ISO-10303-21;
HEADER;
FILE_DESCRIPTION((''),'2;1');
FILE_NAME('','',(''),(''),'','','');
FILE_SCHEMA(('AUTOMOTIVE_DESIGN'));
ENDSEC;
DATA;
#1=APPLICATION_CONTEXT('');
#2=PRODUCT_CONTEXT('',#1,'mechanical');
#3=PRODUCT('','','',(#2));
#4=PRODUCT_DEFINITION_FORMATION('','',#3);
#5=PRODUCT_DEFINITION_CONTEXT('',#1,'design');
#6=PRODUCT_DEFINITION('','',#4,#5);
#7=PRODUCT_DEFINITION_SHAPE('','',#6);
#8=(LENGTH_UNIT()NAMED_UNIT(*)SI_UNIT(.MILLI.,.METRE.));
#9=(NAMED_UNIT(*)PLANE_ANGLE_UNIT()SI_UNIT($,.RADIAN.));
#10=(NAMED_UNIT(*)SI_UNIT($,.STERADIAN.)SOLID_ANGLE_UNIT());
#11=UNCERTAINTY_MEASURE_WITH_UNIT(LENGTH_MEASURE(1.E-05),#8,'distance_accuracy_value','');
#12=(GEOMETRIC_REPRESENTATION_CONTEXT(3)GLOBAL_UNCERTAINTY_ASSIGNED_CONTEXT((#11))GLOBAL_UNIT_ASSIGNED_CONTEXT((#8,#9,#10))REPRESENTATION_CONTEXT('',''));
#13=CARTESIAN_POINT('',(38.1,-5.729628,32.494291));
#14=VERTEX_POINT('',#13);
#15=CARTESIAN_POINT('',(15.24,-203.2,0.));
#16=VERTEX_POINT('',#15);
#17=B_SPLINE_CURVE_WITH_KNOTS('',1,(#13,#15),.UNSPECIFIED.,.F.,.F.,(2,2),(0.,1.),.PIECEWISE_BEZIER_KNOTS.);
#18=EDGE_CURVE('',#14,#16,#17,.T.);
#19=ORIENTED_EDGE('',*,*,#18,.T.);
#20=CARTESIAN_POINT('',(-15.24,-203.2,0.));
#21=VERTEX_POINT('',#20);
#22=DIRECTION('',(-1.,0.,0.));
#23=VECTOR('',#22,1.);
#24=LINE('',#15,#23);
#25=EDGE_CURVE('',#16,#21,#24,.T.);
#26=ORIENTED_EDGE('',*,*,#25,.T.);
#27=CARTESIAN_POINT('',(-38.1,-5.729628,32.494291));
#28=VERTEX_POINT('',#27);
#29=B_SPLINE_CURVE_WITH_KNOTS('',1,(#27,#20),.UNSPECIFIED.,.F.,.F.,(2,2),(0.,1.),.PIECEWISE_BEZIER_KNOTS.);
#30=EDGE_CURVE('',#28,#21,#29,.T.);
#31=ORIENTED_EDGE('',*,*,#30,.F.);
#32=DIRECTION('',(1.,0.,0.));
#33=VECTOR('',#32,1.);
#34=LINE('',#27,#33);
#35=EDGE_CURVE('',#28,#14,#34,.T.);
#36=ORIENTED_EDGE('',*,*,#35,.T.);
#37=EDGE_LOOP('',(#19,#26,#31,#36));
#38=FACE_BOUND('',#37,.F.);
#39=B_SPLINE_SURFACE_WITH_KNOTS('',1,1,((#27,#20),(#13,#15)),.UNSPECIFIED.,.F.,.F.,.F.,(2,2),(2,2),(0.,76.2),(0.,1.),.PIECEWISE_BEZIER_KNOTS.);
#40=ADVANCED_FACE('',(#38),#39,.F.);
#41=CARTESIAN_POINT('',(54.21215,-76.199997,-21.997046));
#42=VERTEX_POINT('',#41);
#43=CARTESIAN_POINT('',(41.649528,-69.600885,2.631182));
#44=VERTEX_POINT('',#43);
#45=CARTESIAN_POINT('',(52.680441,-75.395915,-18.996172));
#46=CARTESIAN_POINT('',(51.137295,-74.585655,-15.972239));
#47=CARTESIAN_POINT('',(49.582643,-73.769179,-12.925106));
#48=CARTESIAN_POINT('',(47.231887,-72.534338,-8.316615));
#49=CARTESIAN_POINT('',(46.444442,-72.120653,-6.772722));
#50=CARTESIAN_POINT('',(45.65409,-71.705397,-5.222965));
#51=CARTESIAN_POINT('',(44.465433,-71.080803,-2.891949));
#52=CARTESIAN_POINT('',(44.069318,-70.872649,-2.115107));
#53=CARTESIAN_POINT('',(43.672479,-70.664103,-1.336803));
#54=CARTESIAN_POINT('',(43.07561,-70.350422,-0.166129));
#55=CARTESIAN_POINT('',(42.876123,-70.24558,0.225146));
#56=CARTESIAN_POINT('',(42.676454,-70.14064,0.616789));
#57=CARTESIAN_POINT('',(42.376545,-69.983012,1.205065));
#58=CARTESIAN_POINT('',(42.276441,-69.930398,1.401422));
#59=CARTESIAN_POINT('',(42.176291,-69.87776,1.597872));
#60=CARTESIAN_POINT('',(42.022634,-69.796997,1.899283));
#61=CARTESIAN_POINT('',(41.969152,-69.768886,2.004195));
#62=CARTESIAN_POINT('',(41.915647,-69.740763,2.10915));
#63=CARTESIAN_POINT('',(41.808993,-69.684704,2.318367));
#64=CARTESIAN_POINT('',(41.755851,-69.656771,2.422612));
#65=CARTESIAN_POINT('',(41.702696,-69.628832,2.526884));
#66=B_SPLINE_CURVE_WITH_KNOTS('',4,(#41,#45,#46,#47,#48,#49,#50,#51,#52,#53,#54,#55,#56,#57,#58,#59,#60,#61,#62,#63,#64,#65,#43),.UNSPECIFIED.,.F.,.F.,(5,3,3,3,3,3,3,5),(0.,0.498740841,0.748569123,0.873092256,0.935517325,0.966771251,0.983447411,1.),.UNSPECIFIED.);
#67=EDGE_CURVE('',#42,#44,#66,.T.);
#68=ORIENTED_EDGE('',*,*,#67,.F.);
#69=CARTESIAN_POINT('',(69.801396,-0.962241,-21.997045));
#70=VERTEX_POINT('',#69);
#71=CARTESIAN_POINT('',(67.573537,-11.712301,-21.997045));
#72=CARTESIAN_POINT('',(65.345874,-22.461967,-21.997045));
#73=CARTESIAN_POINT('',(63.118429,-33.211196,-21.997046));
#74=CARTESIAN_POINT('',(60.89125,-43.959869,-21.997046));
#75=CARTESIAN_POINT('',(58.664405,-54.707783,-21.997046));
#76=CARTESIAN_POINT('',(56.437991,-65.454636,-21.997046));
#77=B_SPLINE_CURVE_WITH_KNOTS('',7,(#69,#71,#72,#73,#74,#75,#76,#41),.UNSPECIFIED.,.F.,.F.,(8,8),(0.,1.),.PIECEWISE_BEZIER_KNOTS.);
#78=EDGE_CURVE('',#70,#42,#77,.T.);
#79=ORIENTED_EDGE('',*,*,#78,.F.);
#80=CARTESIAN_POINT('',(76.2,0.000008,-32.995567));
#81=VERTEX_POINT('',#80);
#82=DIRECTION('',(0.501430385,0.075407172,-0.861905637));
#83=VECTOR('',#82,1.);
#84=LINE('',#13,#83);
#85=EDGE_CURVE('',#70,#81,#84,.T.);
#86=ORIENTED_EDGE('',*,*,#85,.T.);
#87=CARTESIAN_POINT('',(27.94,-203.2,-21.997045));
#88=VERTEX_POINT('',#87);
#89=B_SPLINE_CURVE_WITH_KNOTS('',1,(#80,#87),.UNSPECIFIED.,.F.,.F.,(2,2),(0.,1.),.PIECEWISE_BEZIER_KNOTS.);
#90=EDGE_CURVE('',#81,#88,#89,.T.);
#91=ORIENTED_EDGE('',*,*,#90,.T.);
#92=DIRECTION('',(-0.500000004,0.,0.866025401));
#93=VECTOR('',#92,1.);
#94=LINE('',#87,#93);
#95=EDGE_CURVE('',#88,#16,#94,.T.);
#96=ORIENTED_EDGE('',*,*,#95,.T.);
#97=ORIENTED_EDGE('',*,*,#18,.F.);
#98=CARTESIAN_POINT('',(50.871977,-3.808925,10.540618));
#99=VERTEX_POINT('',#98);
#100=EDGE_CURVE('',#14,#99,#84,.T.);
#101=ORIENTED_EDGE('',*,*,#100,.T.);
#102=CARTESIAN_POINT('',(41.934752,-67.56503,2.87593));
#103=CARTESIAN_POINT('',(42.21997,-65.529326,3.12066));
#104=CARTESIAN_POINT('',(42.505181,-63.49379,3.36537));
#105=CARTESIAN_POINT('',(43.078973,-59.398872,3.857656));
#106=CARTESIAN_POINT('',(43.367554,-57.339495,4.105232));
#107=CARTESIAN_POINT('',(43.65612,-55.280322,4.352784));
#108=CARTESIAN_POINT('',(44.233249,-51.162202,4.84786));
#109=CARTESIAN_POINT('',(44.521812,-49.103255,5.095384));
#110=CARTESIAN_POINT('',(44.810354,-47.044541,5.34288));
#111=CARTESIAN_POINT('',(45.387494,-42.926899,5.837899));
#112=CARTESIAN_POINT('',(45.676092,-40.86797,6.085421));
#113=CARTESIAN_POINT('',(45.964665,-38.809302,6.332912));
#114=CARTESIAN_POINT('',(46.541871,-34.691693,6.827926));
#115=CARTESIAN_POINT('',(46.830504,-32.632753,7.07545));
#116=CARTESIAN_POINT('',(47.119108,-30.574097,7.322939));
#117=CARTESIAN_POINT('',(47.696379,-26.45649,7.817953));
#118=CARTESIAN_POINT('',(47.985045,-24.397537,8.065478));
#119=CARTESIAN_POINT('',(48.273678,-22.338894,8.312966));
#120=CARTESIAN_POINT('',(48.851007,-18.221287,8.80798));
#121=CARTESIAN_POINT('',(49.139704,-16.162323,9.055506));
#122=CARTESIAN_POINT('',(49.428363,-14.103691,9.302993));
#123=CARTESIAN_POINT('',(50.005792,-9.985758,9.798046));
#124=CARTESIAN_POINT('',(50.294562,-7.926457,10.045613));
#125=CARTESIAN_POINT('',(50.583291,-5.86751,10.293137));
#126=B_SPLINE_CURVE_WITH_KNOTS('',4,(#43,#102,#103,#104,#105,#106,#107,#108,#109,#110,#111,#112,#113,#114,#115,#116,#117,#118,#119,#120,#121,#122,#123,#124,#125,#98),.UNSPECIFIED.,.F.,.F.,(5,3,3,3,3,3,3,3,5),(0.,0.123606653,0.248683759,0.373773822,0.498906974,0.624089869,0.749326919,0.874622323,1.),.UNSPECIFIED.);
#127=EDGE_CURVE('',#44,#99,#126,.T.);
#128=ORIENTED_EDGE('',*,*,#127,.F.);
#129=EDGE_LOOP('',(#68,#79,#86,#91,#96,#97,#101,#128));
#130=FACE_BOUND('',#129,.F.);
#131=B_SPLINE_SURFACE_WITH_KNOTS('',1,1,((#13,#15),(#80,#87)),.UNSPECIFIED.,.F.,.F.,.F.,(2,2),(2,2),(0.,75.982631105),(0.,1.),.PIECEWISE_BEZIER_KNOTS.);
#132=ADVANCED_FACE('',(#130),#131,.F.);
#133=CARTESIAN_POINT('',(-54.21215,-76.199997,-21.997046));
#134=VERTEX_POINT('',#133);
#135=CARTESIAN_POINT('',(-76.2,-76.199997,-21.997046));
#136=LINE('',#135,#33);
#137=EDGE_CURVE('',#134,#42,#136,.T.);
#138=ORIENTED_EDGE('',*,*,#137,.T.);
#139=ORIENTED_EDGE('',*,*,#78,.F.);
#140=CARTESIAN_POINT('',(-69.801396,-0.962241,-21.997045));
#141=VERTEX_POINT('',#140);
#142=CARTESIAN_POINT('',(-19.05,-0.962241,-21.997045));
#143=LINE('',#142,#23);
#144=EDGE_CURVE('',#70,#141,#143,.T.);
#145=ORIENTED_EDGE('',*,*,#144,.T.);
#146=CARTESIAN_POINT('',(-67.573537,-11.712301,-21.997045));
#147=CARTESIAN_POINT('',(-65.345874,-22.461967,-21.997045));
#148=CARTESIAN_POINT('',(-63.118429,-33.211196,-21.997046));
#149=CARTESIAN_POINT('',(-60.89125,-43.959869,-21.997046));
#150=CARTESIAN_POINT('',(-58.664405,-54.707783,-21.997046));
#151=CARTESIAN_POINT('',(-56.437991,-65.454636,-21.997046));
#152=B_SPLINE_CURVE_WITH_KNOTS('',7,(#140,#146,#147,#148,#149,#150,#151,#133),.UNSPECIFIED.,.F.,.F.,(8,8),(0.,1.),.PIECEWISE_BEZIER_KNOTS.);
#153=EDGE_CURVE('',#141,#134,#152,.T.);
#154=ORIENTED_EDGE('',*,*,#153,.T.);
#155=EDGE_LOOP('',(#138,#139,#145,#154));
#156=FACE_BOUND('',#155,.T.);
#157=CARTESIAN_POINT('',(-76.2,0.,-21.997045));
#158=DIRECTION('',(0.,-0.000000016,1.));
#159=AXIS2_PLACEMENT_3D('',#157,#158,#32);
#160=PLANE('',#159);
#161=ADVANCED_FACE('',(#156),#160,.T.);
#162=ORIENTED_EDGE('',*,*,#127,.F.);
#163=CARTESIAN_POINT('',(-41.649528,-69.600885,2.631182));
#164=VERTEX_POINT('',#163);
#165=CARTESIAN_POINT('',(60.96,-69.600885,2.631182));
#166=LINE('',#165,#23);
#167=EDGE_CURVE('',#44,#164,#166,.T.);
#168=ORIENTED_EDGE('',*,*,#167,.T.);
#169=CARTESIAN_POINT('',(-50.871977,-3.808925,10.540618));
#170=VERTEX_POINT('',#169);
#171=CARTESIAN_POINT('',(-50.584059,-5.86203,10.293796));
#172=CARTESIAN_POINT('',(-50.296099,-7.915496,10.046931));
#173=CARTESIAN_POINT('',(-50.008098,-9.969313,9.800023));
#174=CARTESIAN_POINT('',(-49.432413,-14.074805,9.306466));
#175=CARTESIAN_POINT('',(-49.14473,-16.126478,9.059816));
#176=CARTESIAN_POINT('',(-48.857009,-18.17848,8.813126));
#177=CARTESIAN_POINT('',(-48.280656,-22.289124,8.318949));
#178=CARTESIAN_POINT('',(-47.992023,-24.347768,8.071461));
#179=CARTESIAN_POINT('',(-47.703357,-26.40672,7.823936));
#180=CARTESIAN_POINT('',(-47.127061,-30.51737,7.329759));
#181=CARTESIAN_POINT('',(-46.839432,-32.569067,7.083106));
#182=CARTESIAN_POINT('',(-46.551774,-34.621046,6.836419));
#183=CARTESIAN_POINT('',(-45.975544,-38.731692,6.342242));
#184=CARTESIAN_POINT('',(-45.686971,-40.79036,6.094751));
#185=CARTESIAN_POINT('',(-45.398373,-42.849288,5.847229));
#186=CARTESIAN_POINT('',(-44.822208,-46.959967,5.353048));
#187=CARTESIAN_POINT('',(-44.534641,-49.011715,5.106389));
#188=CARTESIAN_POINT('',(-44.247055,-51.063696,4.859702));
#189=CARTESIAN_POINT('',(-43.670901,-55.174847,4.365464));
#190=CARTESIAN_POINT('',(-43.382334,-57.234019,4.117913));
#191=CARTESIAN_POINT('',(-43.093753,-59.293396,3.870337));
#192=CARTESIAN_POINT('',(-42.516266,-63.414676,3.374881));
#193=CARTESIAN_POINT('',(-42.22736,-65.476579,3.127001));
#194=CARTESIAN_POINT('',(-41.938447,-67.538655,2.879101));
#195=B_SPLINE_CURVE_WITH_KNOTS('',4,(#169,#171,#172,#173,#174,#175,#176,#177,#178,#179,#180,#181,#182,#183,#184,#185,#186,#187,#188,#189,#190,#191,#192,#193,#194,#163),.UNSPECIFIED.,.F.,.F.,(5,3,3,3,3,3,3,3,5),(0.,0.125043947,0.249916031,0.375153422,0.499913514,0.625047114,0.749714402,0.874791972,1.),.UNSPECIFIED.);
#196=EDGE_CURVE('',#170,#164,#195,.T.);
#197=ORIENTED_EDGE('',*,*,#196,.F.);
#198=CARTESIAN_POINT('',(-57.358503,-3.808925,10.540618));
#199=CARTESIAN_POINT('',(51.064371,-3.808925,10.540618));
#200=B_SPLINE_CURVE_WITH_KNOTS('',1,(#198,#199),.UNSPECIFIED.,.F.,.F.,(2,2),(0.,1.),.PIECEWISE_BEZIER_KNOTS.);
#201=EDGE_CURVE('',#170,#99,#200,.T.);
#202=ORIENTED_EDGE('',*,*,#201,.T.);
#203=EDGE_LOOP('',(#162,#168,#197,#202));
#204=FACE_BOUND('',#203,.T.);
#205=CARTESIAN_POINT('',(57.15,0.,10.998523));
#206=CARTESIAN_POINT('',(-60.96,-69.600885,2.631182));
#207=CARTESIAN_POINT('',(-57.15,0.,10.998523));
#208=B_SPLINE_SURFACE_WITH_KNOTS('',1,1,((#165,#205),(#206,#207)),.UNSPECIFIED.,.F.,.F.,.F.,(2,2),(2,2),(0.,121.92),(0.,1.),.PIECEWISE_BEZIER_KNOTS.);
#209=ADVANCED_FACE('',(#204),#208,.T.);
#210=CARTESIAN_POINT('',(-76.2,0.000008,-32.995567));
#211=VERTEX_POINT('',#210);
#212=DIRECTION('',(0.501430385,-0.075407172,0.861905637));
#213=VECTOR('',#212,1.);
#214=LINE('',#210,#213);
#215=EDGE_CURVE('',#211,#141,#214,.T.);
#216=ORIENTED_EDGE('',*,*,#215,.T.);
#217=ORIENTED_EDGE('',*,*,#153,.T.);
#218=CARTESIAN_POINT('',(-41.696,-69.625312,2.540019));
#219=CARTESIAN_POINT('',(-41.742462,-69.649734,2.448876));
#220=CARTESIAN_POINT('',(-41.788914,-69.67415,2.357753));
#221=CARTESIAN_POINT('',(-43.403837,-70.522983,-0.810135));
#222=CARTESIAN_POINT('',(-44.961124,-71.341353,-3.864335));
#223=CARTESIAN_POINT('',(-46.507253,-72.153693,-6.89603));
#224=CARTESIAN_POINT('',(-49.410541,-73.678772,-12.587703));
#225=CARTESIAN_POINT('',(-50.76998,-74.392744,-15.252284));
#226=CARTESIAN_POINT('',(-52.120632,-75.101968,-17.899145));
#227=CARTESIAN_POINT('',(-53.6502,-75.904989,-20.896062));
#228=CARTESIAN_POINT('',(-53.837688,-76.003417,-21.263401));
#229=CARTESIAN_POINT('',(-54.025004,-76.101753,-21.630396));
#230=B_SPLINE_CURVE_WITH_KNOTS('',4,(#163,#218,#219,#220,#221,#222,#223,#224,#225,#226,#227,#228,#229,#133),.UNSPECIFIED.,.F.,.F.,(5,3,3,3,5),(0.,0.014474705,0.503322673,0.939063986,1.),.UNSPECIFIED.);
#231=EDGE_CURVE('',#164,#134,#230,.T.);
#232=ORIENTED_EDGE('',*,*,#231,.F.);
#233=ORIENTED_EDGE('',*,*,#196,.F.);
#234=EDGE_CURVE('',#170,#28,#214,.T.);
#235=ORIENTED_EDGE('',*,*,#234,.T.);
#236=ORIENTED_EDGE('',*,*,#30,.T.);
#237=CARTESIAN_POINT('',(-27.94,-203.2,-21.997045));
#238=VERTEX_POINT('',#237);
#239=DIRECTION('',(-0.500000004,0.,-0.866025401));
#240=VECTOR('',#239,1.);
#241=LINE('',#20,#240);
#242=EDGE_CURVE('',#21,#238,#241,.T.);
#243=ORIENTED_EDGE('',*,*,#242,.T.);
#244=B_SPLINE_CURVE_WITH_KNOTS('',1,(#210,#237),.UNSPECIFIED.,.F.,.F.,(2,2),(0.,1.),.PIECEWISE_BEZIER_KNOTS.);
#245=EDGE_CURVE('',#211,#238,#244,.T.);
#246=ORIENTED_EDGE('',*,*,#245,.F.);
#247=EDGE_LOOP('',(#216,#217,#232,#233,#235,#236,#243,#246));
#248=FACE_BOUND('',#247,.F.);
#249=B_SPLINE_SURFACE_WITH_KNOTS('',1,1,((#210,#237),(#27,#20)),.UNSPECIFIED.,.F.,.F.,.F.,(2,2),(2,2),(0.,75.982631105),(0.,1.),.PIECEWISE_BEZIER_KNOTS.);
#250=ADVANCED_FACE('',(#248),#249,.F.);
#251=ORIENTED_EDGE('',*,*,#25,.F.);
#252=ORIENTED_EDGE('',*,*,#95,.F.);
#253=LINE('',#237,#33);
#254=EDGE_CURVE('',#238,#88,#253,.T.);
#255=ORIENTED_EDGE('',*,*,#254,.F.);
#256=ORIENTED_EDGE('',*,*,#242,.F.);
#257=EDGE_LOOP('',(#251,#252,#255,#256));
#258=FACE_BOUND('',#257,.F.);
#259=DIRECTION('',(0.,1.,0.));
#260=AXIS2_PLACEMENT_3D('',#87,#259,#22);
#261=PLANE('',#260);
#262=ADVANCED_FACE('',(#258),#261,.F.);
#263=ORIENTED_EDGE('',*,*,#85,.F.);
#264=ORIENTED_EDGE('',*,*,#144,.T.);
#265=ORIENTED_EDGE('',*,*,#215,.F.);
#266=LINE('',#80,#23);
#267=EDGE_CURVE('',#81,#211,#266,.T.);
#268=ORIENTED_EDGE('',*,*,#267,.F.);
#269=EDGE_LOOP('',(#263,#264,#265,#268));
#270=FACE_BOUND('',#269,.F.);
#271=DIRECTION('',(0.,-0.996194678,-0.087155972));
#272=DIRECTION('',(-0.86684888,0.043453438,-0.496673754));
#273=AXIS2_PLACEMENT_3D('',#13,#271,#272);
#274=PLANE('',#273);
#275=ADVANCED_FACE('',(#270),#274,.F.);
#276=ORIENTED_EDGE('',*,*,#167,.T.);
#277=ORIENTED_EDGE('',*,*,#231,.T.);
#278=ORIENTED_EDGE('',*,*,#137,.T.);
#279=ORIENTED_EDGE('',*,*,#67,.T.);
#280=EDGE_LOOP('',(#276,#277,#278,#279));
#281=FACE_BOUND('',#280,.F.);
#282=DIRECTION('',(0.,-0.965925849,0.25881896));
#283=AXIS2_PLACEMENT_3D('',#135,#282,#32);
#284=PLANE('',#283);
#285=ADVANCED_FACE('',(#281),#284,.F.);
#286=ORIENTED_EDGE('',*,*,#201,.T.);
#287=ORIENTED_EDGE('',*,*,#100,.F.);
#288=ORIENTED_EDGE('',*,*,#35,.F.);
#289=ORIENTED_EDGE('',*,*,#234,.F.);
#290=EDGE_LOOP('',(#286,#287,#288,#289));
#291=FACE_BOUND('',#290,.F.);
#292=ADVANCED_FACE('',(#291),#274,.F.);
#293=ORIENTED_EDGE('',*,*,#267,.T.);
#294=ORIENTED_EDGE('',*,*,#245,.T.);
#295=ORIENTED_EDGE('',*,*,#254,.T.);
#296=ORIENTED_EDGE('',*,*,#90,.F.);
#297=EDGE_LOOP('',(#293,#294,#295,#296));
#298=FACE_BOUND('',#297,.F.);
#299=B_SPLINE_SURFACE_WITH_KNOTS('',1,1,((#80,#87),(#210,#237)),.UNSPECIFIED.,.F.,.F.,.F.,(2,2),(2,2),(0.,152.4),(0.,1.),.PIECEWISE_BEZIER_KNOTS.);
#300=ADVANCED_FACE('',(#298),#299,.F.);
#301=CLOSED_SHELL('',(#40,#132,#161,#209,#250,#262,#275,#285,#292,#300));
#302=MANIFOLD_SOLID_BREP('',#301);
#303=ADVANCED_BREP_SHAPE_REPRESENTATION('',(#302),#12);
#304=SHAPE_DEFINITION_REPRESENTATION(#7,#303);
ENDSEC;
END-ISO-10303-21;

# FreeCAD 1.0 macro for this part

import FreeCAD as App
import Part
import Sketcher
Q = App.Units.Quantity

doc = App.newDocument("Part")
body = doc.addObject("PartDesign::Body", "Body")

# Sketch on an angled plane
sketch1 = body.newObject("Sketcher::SketchObject", "Sketch")
sketch1.Placement = App.Placement(App.Vector(0, -2.86481, -0.250638), App.Rotation(App.Vector(-1, 0, 0), App.Vector(0, -0.087155972, 0.996194678), App.Vector(0, 0.996194678, 0.087155972), "ZXY"))
sketch1.addGeometry([
    Part.LineSegment(App.Vector(-38, 33, 0), App.Vector(-76, -33, 0)),
    Part.LineSegment(App.Vector(-76, -33, 0), App.Vector(76, -33, 0)),
    Part.LineSegment(App.Vector(76, -33, 0), App.Vector(38, 33, 0)),
    Part.LineSegment(App.Vector(38, 33, 0), App.Vector(-38, 33, 0)),
], False)
sketch1.addConstraint([
    Sketcher.Constraint("Coincident", 0, 2, 1, 1),
    Sketcher.Constraint("Coincident", 1, 2, 2, 1),
    Sketcher.Constraint("Coincident", 2, 2, 3, 1),
    Sketcher.Constraint("Coincident", 3, 2, 0, 1),
    Sketcher.Constraint("Horizontal", 1),
    Sketcher.Constraint("Horizontal", 3),
    Sketcher.Constraint("Equal", 0, 2),
    Sketcher.Constraint("DistanceX", 1, 1, 1, 2, Q("6 in")),
    Sketcher.Constraint("DistanceX", 3, 2, 3, 1, Q("3 in")),
    Sketcher.Constraint("DistanceX", 0, 2, -1, 1, Q("3 in")),
    Sketcher.Constraint("Distance", 0, Q("75.982631 mm")),
    Sketcher.Constraint("DistanceY", 0, 2, -1, 1, Q("32.87001 mm")),
])

# Sketch on XZ plane
sketch2 = body.newObject("Sketcher::SketchObject", "Sketch001")
sketch2.AttachmentSupport = (doc.getObject("XZ_Plane"), [""])
sketch2.MapMode = "FlatFace"
sketch2.AttachmentOffset = App.Placement(App.Vector(0, 0, 8 * 25.4), App.Rotation())
sketch2.addGeometry([
    Part.LineSegment(App.Vector(-15, 0, 0), App.Vector(-28, -22, 0)),
    Part.LineSegment(App.Vector(-28, -22, 0), App.Vector(28, -22, 0)),
    Part.LineSegment(App.Vector(28, -22, 0), App.Vector(15, 0, 0)),
    Part.LineSegment(App.Vector(15, 0, 0), App.Vector(-15, 0, 0)),
], False)
sketch2.addConstraint([
    Sketcher.Constraint("Coincident", 0, 2, 1, 1),
    Sketcher.Constraint("Coincident", 1, 2, 2, 1),
    Sketcher.Constraint("Coincident", 2, 2, 3, 1),
    Sketcher.Constraint("Coincident", 3, 2, 0, 1),
    Sketcher.Constraint("Horizontal", 1),
    Sketcher.Constraint("Horizontal", 3),
    Sketcher.Constraint("Symmetric", 2, 2, 3, 2, -1, 1),
    Sketcher.Constraint("Equal", 0, 2),
    Sketcher.Constraint("Distance", 0, Q("1 in")),
    Sketcher.Constraint("DistanceX", 1, 1, 1, 2, Q("2.2 in")),
    Sketcher.Constraint("DistanceX", 3, 2, 3, 1, Q("1.2 in")),
])

additiveloft = body.newObject("PartDesign::AdditiveLoft", "AdditiveLoft")
additiveloft.Profile = sketch1
additiveloft.Sections = [sketch2]

# Sketch on an angled plane
sketch3 = body.newObject("Sketcher::SketchObject", "Sketch002")
sketch3.Placement = App.Placement(App.Vector(0, -65.596307, 17.576477), App.Rotation(App.Vector(1, 0, 0), App.Vector(0, 0.25881896, 0.965925849), App.Vector(0, -0.965925849, 0.25881896), "ZXY"))
sketch3.addGeometry([
    Part.LineSegment(App.Vector(-76, -41, 0), App.Vector(76, -41, 0)),
    Part.LineSegment(App.Vector(76, -41, 0), App.Vector(61, -15, 0)),
    Part.LineSegment(App.Vector(61, -15, 0), App.Vector(-61, -15, 0)),
    Part.LineSegment(App.Vector(-61, -15, 0), App.Vector(-76, -41, 0)),
], False)
sketch3.addConstraint([
    Sketcher.Constraint("Coincident", 0, 2, 1, 1),
    Sketcher.Constraint("Coincident", 1, 2, 2, 1),
    Sketcher.Constraint("Coincident", 2, 2, 3, 1),
    Sketcher.Constraint("Coincident", 3, 2, 0, 1),
    Sketcher.Constraint("Horizontal", 0),
    Sketcher.Constraint("Horizontal", 2),
    Sketcher.Constraint("Equal", 1, 3),
    Sketcher.Constraint("DistanceX", 0, 1, 0, 2, Q("6 in")),
    Sketcher.Constraint("DistanceX", 2, 2, 2, 1, Q("4.8 in")),
    Sketcher.Constraint("DistanceX", -1, 1, 0, 2, Q("3 in")),
    Sketcher.Constraint("Distance", 1, Q("29.704469 mm")),
    Sketcher.Constraint("DistanceY", 0, 2, -1, 1, Q("40.969525 mm")),
])

# Sketch on XZ plane
sketch4 = body.newObject("Sketcher::SketchObject", "Sketch003")
sketch4.AttachmentSupport = (doc.getObject("XZ_Plane"), [""])
sketch4.MapMode = "FlatFace"
sketch4.addGeometry([
    Part.LineSegment(App.Vector(76, -22, 0), App.Vector(57, 11, 0)),
    Part.LineSegment(App.Vector(57, 11, 0), App.Vector(-57, 11, 0)),
    Part.LineSegment(App.Vector(-57, 11, 0), App.Vector(-76, -22, 0)),
    Part.LineSegment(App.Vector(-76, -22, 0), App.Vector(76, -22, 0)),
], False)
sketch4.addConstraint([
    Sketcher.Constraint("Coincident", 0, 2, 1, 1),
    Sketcher.Constraint("Coincident", 1, 2, 2, 1),
    Sketcher.Constraint("Coincident", 2, 2, 3, 1),
    Sketcher.Constraint("Coincident", 3, 2, 0, 1),
    Sketcher.Constraint("Horizontal", 1),
    Sketcher.Constraint("Horizontal", 3),
    Sketcher.Constraint("Equal", 0, 2),
    Sketcher.Constraint("DistanceX", 3, 1, 3, 2, Q("6 in")),
    Sketcher.Constraint("DistanceX", 1, 2, 1, 1, Q("4.5 in")),
    Sketcher.Constraint("DistanceX", 2, 2, -1, 1, Q("3 in")),
    Sketcher.Constraint("Angle", 0, Q("120 deg")),
    Sketcher.Constraint("DistanceY", -1, 1, 0, 2, Q("10.998523 mm")),
])

subtractiveloft = body.newObject("PartDesign::SubtractiveLoft", "SubtractiveLoft")
subtractiveloft.Profile = sketch3
subtractiveloft.Sections = [sketch4]

doc.recompute()
